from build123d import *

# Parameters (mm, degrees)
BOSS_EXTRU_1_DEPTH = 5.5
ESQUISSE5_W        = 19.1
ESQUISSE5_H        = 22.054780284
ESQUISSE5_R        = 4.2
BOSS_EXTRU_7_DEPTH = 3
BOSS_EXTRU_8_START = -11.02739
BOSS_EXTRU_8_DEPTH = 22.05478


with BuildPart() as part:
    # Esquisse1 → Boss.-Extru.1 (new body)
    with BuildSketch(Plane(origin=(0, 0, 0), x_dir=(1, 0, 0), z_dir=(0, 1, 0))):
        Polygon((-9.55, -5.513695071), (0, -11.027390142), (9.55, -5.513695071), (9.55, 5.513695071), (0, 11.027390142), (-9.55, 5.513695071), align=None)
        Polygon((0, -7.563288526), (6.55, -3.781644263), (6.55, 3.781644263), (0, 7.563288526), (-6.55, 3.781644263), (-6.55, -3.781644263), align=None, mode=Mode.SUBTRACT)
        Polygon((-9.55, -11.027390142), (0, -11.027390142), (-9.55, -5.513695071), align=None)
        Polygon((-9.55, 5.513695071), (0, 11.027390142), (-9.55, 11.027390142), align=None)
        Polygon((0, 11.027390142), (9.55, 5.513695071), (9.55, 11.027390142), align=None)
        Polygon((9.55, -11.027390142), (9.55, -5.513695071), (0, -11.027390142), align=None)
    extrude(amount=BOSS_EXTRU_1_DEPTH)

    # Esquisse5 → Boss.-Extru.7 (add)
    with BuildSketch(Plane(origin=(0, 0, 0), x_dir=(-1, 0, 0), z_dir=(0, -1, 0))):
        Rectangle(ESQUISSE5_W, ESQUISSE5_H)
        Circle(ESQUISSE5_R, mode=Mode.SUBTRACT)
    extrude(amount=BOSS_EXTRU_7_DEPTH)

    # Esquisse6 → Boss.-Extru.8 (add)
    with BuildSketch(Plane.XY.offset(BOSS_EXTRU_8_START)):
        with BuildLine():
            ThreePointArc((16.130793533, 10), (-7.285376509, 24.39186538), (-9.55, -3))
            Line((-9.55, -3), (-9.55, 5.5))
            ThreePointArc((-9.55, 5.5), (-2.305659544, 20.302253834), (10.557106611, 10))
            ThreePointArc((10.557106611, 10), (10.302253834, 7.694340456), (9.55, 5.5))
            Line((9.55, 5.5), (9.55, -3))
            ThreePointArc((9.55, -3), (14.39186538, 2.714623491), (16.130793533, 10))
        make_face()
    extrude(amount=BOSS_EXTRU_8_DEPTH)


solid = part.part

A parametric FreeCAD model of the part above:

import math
import FreeCAD as App
import Part
import Sketcher
Q = App.Units.Quantity


def add_polygon(sketch, points):
    """Adds a closed chain of lines whose ends are joined by coincident constraints."""
    first, n = sketch.GeometryCount, len(points)
    for a, b in zip(points, points[1:] + points[:1]):
        sketch.addGeometry(Part.LineSegment(App.Vector(*a, 0), App.Vector(*b, 0)), False)
    for i in range(n):
        sketch.addConstraint(Sketcher.Constraint("Coincident", first + i, 2, first + (i + 1) % n, 1))

doc = App.newDocument("Part")
body = doc.addObject("PartDesign::Body", "Body")

sketch1 = doc.addObject("Sketcher::SketchObject", "Sketch")
body.addObject(sketch1)
sketch1.AttachmentSupport = (doc.XZ_Plane, [""])
sketch1.MapMode = "FlatFace"
add_polygon(sketch1, [(-10, 11), (10, 11), (10, -11), (-10, -11)])
add_polygon(sketch1, [(7, 4), (0, 8), (-7, 4), (-7, -4), (0, -8), (7, -4)])
sketch1.addConstraint([
    Sketcher.Constraint("Horizontal", 0),
    Sketcher.Constraint("Vertical", 1),
    Sketcher.Constraint("Horizontal", 2),
    Sketcher.Constraint("Vertical", 3),
    Sketcher.Constraint("Vertical", 6),
    Sketcher.Constraint("Vertical", 9),
    Sketcher.Constraint("Symmetric", 0, 2, 2, 2, -1, 1),
    Sketcher.Constraint("Symmetric", 4, 2, 7, 2, -1, 1),
    Sketcher.Constraint("Symmetric", 5, 2, 8, 2, -1, 1),
    Sketcher.Constraint("PointOnObject", 4, 2, -2),
    Sketcher.Constraint("Parallel", 4, 7),
    Sketcher.Constraint("Horizontal", 6, 2, 8, 2),
    Sketcher.Constraint("Angle", 4, Q("150 deg")),
    Sketcher.Constraint("DistanceX", 0, 1, 0, 2, 19.1),
    Sketcher.Constraint("DistanceX", 3, 2, 5, 2, 3.0),
    Sketcher.Constraint("DistanceY", 1, 2, 1, 1, 22.05478),
    Sketcher.Constraint("DistanceY", 6, 2, 6, 1, 7.563289),
])
pad1 = doc.addObject("PartDesign::Pad", "Pad")
body.addObject(pad1)
pad1.Profile = sketch1
pad1.Length = 5.5
pad1.Reversed = True

sketch2 = doc.addObject("Sketcher::SketchObject", "Sketch001")
body.addObject(sketch2)
sketch2.AttachmentSupport = (doc.XZ_Plane, [""])
sketch2.MapMode = "FlatFace"
add_polygon(sketch2, [(9.6, -11), (9.6, 11), (-9.6, 11), (-9.6, -11)])
sketch2.addGeometry(Part.Circle(App.Vector(0, 0, 0), App.Vector(0, 0, 1), 4.2), False)
sketch2.addConstraint([
    Sketcher.Constraint("Vertical", 0),
    Sketcher.Constraint("Horizontal", 1),
    Sketcher.Constraint("Vertical", 2),
    Sketcher.Constraint("Horizontal", 3),
    Sketcher.Constraint("Coincident", 4, 3, -1, 1),
    Sketcher.Constraint("Symmetric", 0, 2, 2, 2, -1, 1),
    Sketcher.Constraint("Diameter", 4, 8.4),
    Sketcher.Constraint("DistanceX", 1, 2, 1, 1, 19.1),
    Sketcher.Constraint("DistanceY", 0, 1, 0, 2, 22.05478),
])
pad2 = doc.addObject("PartDesign::Pad", "Pad001")
body.addObject(pad2)
pad2.Profile = sketch2
pad2.Length = 3

sketch3 = doc.addObject("Sketcher::SketchObject", "Sketch002")
body.addObject(sketch3)
sketch3.AttachmentSupport = (doc.XY_Plane, [""])
sketch3.MapMode = "FlatFace"
sketch3.AttachmentOffset = App.Placement(App.Vector(0, 0, -11.02739), App.Rotation())
sketch3.addGeometry([
    Part.ArcOfCircle(Part.Circle(App.Vector(0, 10, 0), App.Vector(0, 0, 1), 16.1), math.radians(0), math.radians(234)),
    Part.LineSegment(App.Vector(-9.6, -3, 0), App.Vector(-9.6, 5.5, 0)),
    Part.ArcOfCircle(Part.Circle(App.Vector(0, 10, 0), App.Vector(0, 0, 1), 10.6), math.radians(0), math.radians(205)),
    Part.ArcOfCircle(Part.Circle(App.Vector(0, 10, 0), App.Vector(0, 0, 1), 10.6), math.radians(-25), math.radians(0)),
    Part.LineSegment(App.Vector(9.6, 5.5, 0), App.Vector(9.6, -3, 0)),
    Part.ArcOfCircle(Part.Circle(App.Vector(0, 10, 0), App.Vector(0, 0, 1), 16.1), math.radians(-54), math.radians(0)),
], False)
sketch3.addConstraint([
    Sketcher.Constraint("Coincident", 0, 2, 1, 1),
    Sketcher.Constraint("Coincident", 1, 2, 2, 2),
    Sketcher.Constraint("Tangent", 2, 1, 3, 2),
    Sketcher.Constraint("Coincident", 3, 1, 4, 1),
    Sketcher.Constraint("Coincident", 4, 2, 5, 1),
    Sketcher.Constraint("Tangent", 5, 2, 0, 1),
    Sketcher.Constraint("Vertical", 1),
    Sketcher.Constraint("Vertical", 4),
    Sketcher.Constraint("Coincident", 2, 3, 0, 3),
    Sketcher.Constraint("Equal", 2, 3),
    Sketcher.Constraint("Equal", 0, 5),
    Sketcher.Constraint("Symmetric", 1, 2, 3, 1, -2),
    Sketcher.Constraint("Horizontal", 5, 3, 2, 1),
    Sketcher.Constraint("Horizontal", 2, 1, 5, 2),
    Sketcher.Constraint("DistanceY", 1, 1, 1, 2, 8.5),
    Sketcher.Constraint("DistanceY", -1, 1, 0, 3, 10.0),
    Sketcher.Constraint("DistanceY", 0, 2, -1, 1, 3.0),
    Sketcher.Constraint("DistanceX", 0, 2, -1, 1, 9.55),
])
pad3 = doc.addObject("PartDesign::Pad", "Pad002")
body.addObject(pad3)
pad3.Profile = sketch3
pad3.Length = 22.05478

doc.recompute()
